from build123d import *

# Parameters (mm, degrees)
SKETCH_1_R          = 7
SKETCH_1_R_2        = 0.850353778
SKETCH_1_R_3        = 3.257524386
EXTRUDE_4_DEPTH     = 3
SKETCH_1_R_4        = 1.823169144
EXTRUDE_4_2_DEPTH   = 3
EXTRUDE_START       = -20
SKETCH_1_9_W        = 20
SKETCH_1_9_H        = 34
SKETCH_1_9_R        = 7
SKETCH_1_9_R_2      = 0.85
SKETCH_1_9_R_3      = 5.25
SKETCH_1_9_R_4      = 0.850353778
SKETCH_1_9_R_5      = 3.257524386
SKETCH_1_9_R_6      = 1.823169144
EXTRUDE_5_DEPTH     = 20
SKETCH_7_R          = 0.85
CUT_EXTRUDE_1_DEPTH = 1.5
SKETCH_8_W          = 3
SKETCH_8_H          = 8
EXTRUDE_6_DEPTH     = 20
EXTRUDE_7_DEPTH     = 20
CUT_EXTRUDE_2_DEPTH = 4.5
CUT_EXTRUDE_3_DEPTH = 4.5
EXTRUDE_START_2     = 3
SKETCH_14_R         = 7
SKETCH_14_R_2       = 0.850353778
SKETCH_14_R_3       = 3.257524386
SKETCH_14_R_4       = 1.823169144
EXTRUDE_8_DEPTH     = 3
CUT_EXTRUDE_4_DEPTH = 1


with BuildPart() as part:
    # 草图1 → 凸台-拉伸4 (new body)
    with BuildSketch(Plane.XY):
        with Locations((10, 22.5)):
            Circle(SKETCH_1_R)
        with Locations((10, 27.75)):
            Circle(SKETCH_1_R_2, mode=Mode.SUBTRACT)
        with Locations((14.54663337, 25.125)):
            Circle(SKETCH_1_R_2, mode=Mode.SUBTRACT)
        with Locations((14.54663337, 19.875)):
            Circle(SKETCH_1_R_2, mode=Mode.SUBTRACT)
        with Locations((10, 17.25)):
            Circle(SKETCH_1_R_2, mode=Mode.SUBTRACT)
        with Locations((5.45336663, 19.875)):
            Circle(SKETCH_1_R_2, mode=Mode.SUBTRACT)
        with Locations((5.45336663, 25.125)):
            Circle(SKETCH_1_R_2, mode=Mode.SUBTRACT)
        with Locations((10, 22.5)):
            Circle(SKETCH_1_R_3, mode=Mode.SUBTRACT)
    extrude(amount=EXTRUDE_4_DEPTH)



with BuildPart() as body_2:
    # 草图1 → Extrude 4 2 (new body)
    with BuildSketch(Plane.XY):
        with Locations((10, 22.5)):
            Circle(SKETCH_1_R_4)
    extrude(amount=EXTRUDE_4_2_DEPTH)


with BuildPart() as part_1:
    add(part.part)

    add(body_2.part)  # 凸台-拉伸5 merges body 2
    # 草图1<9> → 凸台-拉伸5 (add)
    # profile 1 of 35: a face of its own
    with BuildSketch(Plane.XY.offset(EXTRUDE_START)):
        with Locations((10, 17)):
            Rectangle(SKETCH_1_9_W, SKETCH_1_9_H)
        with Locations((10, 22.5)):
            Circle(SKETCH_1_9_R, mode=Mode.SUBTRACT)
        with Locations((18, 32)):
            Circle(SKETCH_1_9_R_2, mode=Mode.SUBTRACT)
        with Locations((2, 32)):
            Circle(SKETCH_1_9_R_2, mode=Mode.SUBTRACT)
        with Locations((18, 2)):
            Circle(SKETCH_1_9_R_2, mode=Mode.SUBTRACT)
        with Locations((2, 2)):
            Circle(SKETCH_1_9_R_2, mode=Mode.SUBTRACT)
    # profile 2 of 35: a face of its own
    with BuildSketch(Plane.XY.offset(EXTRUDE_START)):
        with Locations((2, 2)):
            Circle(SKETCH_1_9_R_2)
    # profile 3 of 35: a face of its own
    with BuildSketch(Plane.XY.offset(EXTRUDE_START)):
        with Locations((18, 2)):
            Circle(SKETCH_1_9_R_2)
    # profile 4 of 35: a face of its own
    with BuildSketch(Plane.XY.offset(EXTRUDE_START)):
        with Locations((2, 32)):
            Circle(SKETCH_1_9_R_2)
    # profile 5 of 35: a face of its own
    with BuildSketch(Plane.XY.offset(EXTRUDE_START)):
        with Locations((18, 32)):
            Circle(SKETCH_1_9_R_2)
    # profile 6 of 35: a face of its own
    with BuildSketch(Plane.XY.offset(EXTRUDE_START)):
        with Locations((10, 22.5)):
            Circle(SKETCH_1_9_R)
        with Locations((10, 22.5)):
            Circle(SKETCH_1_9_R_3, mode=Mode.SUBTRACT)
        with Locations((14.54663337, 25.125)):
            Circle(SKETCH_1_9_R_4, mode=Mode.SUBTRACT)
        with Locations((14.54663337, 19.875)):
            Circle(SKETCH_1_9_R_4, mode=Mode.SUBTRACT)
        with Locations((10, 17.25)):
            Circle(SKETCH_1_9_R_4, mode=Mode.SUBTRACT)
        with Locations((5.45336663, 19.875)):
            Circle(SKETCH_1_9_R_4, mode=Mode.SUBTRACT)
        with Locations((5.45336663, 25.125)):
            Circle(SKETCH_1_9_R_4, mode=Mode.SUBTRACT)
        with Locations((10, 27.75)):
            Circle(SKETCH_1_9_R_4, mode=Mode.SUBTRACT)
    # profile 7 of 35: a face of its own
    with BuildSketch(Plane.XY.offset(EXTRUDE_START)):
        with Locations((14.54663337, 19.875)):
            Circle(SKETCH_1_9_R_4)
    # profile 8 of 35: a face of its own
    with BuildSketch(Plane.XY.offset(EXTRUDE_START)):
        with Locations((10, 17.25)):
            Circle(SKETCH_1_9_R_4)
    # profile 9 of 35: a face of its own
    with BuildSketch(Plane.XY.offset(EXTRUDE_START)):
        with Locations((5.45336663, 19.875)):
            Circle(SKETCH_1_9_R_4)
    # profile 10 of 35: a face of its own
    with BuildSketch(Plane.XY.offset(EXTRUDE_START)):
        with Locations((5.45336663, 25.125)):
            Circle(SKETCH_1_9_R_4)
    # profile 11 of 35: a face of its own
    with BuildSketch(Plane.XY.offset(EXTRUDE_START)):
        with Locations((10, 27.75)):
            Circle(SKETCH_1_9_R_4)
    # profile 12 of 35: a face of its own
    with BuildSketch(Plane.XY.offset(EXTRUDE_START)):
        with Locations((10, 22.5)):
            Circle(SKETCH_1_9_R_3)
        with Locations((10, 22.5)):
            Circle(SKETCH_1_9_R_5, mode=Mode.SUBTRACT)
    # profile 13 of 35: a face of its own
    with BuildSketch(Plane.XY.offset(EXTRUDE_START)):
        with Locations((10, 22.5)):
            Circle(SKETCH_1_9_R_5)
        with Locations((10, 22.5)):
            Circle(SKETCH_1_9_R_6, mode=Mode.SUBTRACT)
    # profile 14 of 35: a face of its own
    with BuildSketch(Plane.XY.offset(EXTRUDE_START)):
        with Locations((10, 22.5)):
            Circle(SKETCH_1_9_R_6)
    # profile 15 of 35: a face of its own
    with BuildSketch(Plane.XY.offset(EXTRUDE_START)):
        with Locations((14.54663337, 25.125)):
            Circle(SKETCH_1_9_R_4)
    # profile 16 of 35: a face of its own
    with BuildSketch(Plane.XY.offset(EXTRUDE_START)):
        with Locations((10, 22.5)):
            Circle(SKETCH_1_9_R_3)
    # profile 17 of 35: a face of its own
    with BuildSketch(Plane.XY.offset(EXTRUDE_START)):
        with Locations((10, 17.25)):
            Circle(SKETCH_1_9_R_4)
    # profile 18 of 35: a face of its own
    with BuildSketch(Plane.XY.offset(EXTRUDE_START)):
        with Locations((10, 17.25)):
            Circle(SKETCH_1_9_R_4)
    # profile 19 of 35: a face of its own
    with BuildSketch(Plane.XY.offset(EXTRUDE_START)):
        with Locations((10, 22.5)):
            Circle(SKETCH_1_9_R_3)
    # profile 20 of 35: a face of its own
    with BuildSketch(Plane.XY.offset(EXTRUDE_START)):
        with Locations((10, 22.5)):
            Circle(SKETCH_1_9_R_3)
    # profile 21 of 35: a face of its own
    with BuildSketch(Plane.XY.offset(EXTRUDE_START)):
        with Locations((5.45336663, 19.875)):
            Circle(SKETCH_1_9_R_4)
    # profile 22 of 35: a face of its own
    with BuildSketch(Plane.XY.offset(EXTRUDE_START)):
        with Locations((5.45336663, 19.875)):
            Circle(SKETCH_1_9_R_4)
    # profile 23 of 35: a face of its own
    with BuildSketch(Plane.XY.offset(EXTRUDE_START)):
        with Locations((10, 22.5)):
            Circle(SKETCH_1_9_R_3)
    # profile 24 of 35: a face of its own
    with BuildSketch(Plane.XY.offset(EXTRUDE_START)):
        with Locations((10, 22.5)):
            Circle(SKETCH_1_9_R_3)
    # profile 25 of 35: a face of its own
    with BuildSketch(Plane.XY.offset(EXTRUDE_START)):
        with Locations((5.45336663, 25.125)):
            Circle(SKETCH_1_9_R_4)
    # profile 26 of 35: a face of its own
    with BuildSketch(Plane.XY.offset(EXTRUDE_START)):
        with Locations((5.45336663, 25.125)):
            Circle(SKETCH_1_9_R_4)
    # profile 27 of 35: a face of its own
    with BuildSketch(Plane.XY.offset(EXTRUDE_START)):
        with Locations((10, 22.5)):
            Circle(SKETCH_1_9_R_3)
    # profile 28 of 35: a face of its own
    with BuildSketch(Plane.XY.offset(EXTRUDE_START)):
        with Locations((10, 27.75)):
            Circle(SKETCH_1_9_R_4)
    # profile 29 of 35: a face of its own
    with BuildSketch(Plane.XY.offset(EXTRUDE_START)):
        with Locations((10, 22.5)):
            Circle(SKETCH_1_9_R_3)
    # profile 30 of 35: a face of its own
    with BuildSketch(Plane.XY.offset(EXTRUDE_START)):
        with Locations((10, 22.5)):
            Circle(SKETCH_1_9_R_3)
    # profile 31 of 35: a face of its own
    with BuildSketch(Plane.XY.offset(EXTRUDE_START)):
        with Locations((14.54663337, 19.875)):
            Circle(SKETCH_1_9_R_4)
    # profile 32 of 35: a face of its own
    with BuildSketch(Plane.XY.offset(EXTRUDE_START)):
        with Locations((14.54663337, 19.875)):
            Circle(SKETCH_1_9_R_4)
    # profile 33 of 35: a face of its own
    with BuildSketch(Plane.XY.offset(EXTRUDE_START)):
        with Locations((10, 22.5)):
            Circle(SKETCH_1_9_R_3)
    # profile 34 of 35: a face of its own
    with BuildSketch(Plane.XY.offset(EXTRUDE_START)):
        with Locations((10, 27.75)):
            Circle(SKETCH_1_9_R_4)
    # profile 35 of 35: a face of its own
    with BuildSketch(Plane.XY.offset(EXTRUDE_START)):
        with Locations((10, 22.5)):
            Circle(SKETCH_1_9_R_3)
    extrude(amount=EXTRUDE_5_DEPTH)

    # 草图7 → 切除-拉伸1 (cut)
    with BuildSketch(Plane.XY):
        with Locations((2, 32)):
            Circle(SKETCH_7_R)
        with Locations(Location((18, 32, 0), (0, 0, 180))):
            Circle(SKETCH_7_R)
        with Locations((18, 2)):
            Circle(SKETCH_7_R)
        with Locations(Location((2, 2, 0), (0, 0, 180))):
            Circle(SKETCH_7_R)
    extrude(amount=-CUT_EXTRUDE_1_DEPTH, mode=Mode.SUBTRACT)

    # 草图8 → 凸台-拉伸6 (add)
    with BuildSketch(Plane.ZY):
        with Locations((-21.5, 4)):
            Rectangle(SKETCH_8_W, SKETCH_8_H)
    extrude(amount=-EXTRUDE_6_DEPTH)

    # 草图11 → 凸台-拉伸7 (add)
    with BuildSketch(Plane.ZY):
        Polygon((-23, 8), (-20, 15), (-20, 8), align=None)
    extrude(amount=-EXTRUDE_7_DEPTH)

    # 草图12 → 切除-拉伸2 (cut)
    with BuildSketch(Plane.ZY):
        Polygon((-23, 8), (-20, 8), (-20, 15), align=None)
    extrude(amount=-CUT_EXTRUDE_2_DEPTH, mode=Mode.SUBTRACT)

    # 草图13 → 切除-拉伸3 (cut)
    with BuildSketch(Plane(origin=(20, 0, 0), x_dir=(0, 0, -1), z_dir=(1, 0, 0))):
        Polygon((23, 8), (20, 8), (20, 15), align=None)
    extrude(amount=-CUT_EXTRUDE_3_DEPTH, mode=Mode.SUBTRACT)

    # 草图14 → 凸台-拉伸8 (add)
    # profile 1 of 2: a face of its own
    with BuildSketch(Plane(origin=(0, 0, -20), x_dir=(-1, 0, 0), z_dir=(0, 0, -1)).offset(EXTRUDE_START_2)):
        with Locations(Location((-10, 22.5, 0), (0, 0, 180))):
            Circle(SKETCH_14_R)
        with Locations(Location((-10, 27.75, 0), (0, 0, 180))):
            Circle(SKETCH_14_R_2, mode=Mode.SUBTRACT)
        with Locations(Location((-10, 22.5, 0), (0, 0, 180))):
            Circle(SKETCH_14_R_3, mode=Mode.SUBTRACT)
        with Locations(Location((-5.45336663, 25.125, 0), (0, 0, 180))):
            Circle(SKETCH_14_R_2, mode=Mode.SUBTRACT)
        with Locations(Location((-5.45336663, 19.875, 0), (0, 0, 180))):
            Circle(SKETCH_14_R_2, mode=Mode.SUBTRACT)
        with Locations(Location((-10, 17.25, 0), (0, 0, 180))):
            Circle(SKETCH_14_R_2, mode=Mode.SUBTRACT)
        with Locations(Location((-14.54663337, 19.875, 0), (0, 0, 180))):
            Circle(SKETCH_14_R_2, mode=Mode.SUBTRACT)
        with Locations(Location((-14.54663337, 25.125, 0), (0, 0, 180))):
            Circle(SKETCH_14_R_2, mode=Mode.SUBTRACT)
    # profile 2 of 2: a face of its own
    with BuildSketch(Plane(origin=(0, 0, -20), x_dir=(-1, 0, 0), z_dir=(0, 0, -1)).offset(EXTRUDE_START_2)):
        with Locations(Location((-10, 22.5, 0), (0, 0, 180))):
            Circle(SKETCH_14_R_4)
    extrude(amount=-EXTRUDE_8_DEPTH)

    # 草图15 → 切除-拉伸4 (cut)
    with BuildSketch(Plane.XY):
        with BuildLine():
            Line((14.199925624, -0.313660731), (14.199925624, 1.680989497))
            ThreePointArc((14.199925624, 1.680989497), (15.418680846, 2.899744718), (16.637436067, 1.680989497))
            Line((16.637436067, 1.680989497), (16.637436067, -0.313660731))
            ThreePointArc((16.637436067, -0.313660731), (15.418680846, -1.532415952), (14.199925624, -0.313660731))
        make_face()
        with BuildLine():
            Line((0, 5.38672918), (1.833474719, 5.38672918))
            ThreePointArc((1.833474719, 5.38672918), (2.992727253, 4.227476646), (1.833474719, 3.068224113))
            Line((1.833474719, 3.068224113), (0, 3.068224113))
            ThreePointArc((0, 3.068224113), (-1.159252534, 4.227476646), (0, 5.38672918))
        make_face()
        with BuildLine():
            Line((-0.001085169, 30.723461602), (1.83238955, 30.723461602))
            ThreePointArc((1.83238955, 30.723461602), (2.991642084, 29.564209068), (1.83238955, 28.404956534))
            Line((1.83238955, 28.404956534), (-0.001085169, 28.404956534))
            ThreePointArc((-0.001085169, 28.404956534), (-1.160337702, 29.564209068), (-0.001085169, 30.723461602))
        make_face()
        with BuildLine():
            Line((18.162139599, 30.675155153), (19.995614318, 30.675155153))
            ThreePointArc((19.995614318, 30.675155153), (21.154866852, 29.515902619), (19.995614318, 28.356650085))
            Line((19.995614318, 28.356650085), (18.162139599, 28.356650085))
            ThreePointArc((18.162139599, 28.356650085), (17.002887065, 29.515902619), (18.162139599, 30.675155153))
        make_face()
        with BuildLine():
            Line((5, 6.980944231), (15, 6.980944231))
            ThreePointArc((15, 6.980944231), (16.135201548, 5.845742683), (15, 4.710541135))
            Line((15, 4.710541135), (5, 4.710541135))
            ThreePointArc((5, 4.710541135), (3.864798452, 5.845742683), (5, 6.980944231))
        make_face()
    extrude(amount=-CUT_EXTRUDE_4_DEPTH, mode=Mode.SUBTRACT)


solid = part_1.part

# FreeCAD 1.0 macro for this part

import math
import FreeCAD as App
import Part
import Sketcher

V = App.Vector
Q = App.Units.Quantity

doc = App.newDocument("Part")
params = doc.addObject("Spreadsheet::Sheet", "Params")
for row, (alias, value) in enumerate([
    ("sketch1_diameter", "14 mm"),
    ("pad1_length", "3 mm"),
    ("pad2_length", "3 mm"),
    ("sketch3_width", "20 mm"),
    ("sketch3_height", "34 mm"),
    ("pad3_length", "20 mm"),
    ("sketch4_diameter", "1.7 mm"),
    ("pocket1_length", "1.5 mm"),
    ("sketch5_width", "8 mm"),
    ("sketch5_height", "3 mm"),
    ("pad4_length", "20 mm"),
    ("sketch6_width", "7 mm"),
    ("sketch6_height", "3 mm"),
    ("pad5_length", "20 mm"),
    ("sketch7_width", "7 mm"),
    ("sketch7_height", "3 mm"),
    ("pocket2_length", "4.5 mm"),
    ("sketch8_width", "7 mm"),
    ("sketch8_height", "3 mm"),
    ("pocket3_length", "4.5 mm"),
    ("sketch9_diameter", "14 mm"),
    ("pad6_length", "3 mm"),
    ("sketch10_width", "10 mm"),
    ("pocket4_length", "1 mm"),
], start=1):
    params.set(f"A{row}", alias)
    params.set(f"B{row}", "=" + value)
    params.setAlias(f"B{row}", alias)

body = doc.addObject("PartDesign::Body", "Body")

sketch1 = doc.addObject("Sketcher::SketchObject", "Sketch")
body.addObject(sketch1)
sketch1.AttachmentSupport = (doc.XY_Plane, [""])
sketch1.MapMode = "FlatFace"
sketch1.addGeometry(Part.Circle(V(10, 22.5, 0), V(0, 0, 1), 7), False)
sketch1.addGeometry(Part.Circle(V(5.453367, 19.875, 0), V(0, 0, 1), 0.850354), False)
sketch1.addGeometry(Part.Circle(V(10, 17.25, 0), V(0, 0, 1), 0.850354), False)
sketch1.addGeometry(Part.Circle(V(14.546633, 19.875, 0), V(0, 0, 1), 0.850354), False)
sketch1.addGeometry(Part.Circle(V(5.453367, 25.125, 0), V(0, 0, 1), 0.850354), False)
sketch1.addGeometry(Part.Circle(V(10, 22.5, 0), V(0, 0, 1), 3.257524), False)
sketch1.addGeometry(Part.Circle(V(14.546633, 25.125, 0), V(0, 0, 1), 0.850354), False)
sketch1.addGeometry(Part.Circle(V(10, 27.75, 0), V(0, 0, 1), 0.850354), False)
sketch1.addConstraint(Sketcher.Constraint("Coincident", 5, 3, 0, 3))
sketch1.addConstraint(Sketcher.Constraint("Equal", 1, 2))
sketch1.addConstraint(Sketcher.Constraint("Equal", 2, 3))
sketch1.addConstraint(Sketcher.Constraint("Equal", 3, 4))
sketch1.addConstraint(Sketcher.Constraint("Equal", 4, 6))
sketch1.addConstraint(Sketcher.Constraint("Equal", 6, 7))
sketch1.addConstraint(Sketcher.Constraint("Horizontal", 1, 3, 3, 3))
sketch1.addConstraint(Sketcher.Constraint("Horizontal", 4, 3, 6, 3))
sketch1.addConstraint(Sketcher.Constraint("Vertical", 0, 3, 2, 3))
sketch1.addConstraint(Sketcher.Constraint("Vertical", 1, 3, 4, 3))
sketch1.addConstraint(Sketcher.Constraint("Vertical", 3, 3, 6, 3))
sketch1.addConstraint(Sketcher.Constraint("Vertical", 5, 3, 7, 3))
sketch1.addConstraint(Sketcher.Constraint("Diameter", 0, Q("14 mm")))
sketch1.addConstraint(Sketcher.Constraint("DistanceX", -1, 1, 0, 3, Q("10 mm")))
sketch1.addConstraint(Sketcher.Constraint("DistanceY", -1, 1, 0, 3, Q("22.5 mm")))
sketch1.addConstraint(Sketcher.Constraint("Diameter", 5, Q("6.515049 mm")))
sketch1.addConstraint(Sketcher.Constraint("DistanceY", -1, 1, 2, 3, Q("17.25 mm")))
sketch1.addConstraint(Sketcher.Constraint("DistanceY", -1, 1, 7, 3, Q("27.75 mm")))
sketch1.addConstraint(Sketcher.Constraint("DistanceY", 1, 3, 4, 3, Q("5.25 mm")))
sketch1.addConstraint(Sketcher.Constraint("Diameter", 1, Q("1.700708 mm")))
sketch1.addConstraint(Sketcher.Constraint("DistanceY", -1, 1, 1, 3, Q("19.875 mm")))
sketch1.addConstraint(Sketcher.Constraint("DistanceX", -1, 1, 1, 3, Q("5.453367 mm")))
sketch1.addConstraint(Sketcher.Constraint("DistanceX", -1, 1, 3, 3, Q("14.546633 mm")))
sketch1.setExpression("Constraints[12]", "Params.sketch1_diameter")
pad1 = doc.addObject("PartDesign::Pad", "Pad")
body.addObject(pad1)
pad1.Profile = sketch1
pad1.setExpression("Length", "Params.pad1_length")
body2 = doc.addObject("PartDesign::Body", "Body001")

sketch2 = doc.addObject("Sketcher::SketchObject", "Sketch001")
body2.addObject(sketch2)
sketch2.AttachmentSupport = (doc.getObject("XY_Plane001"), [""])
sketch2.MapMode = "FlatFace"
sketch2.addGeometry(Part.Circle(V(10, 22.5, 0), V(0, 0, 1), 1.823169), False)
sketch2.addConstraint(Sketcher.Constraint("DistanceX", -1, 1, 0, 3, Q("10 mm")))
sketch2.addConstraint(Sketcher.Constraint("DistanceY", -1, 1, 0, 3, Q("22.5 mm")))
sketch2.addConstraint(Sketcher.Constraint("Diameter", 0, Q("3.646338 mm")))
pad2 = doc.addObject("PartDesign::Pad", "Pad001")
body2.addObject(pad2)
pad2.Profile = sketch2
pad2.setExpression("Length", "Params.pad2_length")
body.AllowCompound = True
doc.recompute()

boolean = doc.addObject("PartDesign::Boolean", "Boolean")
body.addObject(boolean)
boolean.Type = "Fuse"
boolean.addObjects([body2])

sketch3 = doc.addObject("Sketcher::SketchObject", "Sketch002")
body.addObject(sketch3)
sketch3.AttachmentSupport = (doc.XY_Plane, [""])
sketch3.MapMode = "FlatFace"
sketch3.AttachmentOffset = App.Placement(V(0, 0, -20), App.Rotation())
sketch3.addGeometry(Part.LineSegment(V(0, 34, 0), V(0, 0, 0)), False)
sketch3.addGeometry(Part.LineSegment(V(0, 0, 0), V(20, 0, 0)), False)
sketch3.addGeometry(Part.LineSegment(V(20, 0, 0), V(20, 34, 0)), False)
sketch3.addGeometry(Part.LineSegment(V(20, 34, 0), V(0, 34, 0)), False)
sketch3.addConstraint(Sketcher.Constraint("Coincident", 0, 2, 1, 1))
sketch3.addConstraint(Sketcher.Constraint("Coincident", 1, 2, 2, 1))
sketch3.addConstraint(Sketcher.Constraint("Coincident", 2, 2, 3, 1))
sketch3.addConstraint(Sketcher.Constraint("Coincident", 3, 2, 0, 1))
sketch3.addConstraint(Sketcher.Constraint("Vertical", 0))
sketch3.addConstraint(Sketcher.Constraint("Horizontal", 1))
sketch3.addConstraint(Sketcher.Constraint("Vertical", 2))
sketch3.addConstraint(Sketcher.Constraint("Horizontal", 3))
sketch3.addConstraint(Sketcher.Constraint("Coincident", 0, 2, -1, 1))
sketch3.addConstraint(Sketcher.Constraint("DistanceX", 1, 1, 1, 2, Q("20 mm")))
sketch3.addConstraint(Sketcher.Constraint("DistanceY", 0, 2, 0, 1, Q("34 mm")))
sketch3.setExpression("Constraints[9]", "Params.sketch3_width")
sketch3.setExpression("Constraints[10]", "Params.sketch3_height")
pad3 = doc.addObject("PartDesign::Pad", "Pad002")
body.addObject(pad3)
pad3.Profile = sketch3
pad3.setExpression("Length", "Params.pad3_length")

sketch4 = doc.addObject("Sketcher::SketchObject", "Sketch003")
body.addObject(sketch4)
sketch4.AttachmentSupport = (doc.XY_Plane, [""])
sketch4.MapMode = "FlatFace"
sketch4.addGeometry(Part.Circle(V(2, 32, 0), V(0, 0, 1), 0.85), False)
sketch4.addGeometry(Part.Circle(V(18, 32, 0), V(0, 0, 1), 0.85), False)
sketch4.addGeometry(Part.Circle(V(18, 2, 0), V(0, 0, 1), 0.85), False)
sketch4.addGeometry(Part.Circle(V(2, 2, 0), V(0, 0, 1), 0.85), False)
sketch4.addConstraint(Sketcher.Constraint("Equal", 0, 1))
sketch4.addConstraint(Sketcher.Constraint("Equal", 1, 2))
sketch4.addConstraint(Sketcher.Constraint("Equal", 2, 3))
sketch4.addConstraint(Sketcher.Constraint("Horizontal", 0, 3, 1, 3))
sketch4.addConstraint(Sketcher.Constraint("Horizontal", 2, 3, 3, 3))
sketch4.addConstraint(Sketcher.Constraint("Vertical", 1, 3, 2, 3))
sketch4.addConstraint(Sketcher.Constraint("Vertical", 0, 3, 3, 3))
sketch4.addConstraint(Sketcher.Constraint("Diameter", 0, Q("1.7 mm")))
sketch4.addConstraint(Sketcher.Constraint("DistanceX", -1, 1, 0, 3, Q("2 mm")))
sketch4.addConstraint(Sketcher.Constraint("DistanceY", -1, 1, 0, 3, Q("32 mm")))
sketch4.addConstraint(Sketcher.Constraint("DistanceX", -1, 1, 1, 3, Q("18 mm")))
sketch4.addConstraint(Sketcher.Constraint("DistanceY", -1, 1, 2, 3, Q("2 mm")))
sketch4.setExpression("Constraints[7]", "Params.sketch4_diameter")
pocket1 = doc.addObject("PartDesign::Pocket", "Pocket")
body.addObject(pocket1)
pocket1.Profile = sketch4
pocket1.setExpression("Length", "Params.pocket1_length")

sketch5 = doc.addObject("Sketcher::SketchObject", "Sketch004")
body.addObject(sketch5)
sketch5.AttachmentSupport = (doc.YZ_Plane, [""])
sketch5.MapMode = "FlatFace"
sketch5.addGeometry(Part.LineSegment(V(8, -23, 0), V(0, -23, 0)), False)
sketch5.addGeometry(Part.LineSegment(V(0, -23, 0), V(0, -20, 0)), False)
sketch5.addGeometry(Part.LineSegment(V(0, -20, 0), V(8, -20, 0)), False)
sketch5.addGeometry(Part.LineSegment(V(8, -20, 0), V(8, -23, 0)), False)
sketch5.addConstraint(Sketcher.Constraint("Coincident", 0, 2, 1, 1))
sketch5.addConstraint(Sketcher.Constraint("Coincident", 1, 2, 2, 1))
sketch5.addConstraint(Sketcher.Constraint("Coincident", 2, 2, 3, 1))
sketch5.addConstraint(Sketcher.Constraint("Coincident", 3, 2, 0, 1))
sketch5.addConstraint(Sketcher.Constraint("Horizontal", 0))
sketch5.addConstraint(Sketcher.Constraint("Vertical", 1))
sketch5.addConstraint(Sketcher.Constraint("Horizontal", 2))
sketch5.addConstraint(Sketcher.Constraint("Vertical", 3))
sketch5.addConstraint(Sketcher.Constraint("PointOnObject", 0, 2, -2))
sketch5.addConstraint(Sketcher.Constraint("DistanceX", 0, 2, 0, 1, Q("8 mm")))
sketch5.addConstraint(Sketcher.Constraint("DistanceY", 1, 1, 1, 2, Q("3 mm")))
sketch5.addConstraint(Sketcher.Constraint("DistanceY", 0, 2, -1, 1, Q("23 mm")))
sketch5.setExpression("Constraints[9]", "Params.sketch5_width")
sketch5.setExpression("Constraints[10]", "Params.sketch5_height")
pad4 = doc.addObject("PartDesign::Pad", "Pad003")
body.addObject(pad4)
pad4.Profile = sketch5
pad4.setExpression("Length", "Params.pad4_length")

sketch6 = doc.addObject("Sketcher::SketchObject", "Sketch005")
body.addObject(sketch6)
sketch6.AttachmentSupport = (doc.YZ_Plane, [""])
sketch6.MapMode = "FlatFace"
sketch6.addGeometry(Part.LineSegment(V(15, -20, 0), V(8, -23, 0)), False)
sketch6.addGeometry(Part.LineSegment(V(8, -23, 0), V(8, -20, 0)), False)
sketch6.addGeometry(Part.LineSegment(V(8, -20, 0), V(15, -20, 0)), False)
sketch6.addConstraint(Sketcher.Constraint("Coincident", 0, 2, 1, 1))
sketch6.addConstraint(Sketcher.Constraint("Coincident", 1, 2, 2, 1))
sketch6.addConstraint(Sketcher.Constraint("Coincident", 2, 2, 0, 1))
sketch6.addConstraint(Sketcher.Constraint("Vertical", 1))
sketch6.addConstraint(Sketcher.Constraint("Horizontal", 2))
sketch6.addConstraint(Sketcher.Constraint("DistanceX", 2, 1, 2, 2, Q("7 mm")))
sketch6.addConstraint(Sketcher.Constraint("DistanceY", 1, 1, 1, 2, Q("3 mm")))
sketch6.addConstraint(Sketcher.Constraint("DistanceX", -1, 1, 0, 2, Q("8 mm")))
sketch6.addConstraint(Sketcher.Constraint("DistanceY", 0, 2, -1, 1, Q("23 mm")))
sketch6.setExpression("Constraints[5]", "Params.sketch6_width")
sketch6.setExpression("Constraints[6]", "Params.sketch6_height")
pad5 = doc.addObject("PartDesign::Pad", "Pad004")
body.addObject(pad5)
pad5.Profile = sketch6
pad5.setExpression("Length", "Params.pad5_length")

sketch7 = doc.addObject("Sketcher::SketchObject", "Sketch006")
body.addObject(sketch7)
sketch7.AttachmentSupport = (doc.YZ_Plane, [""])
sketch7.MapMode = "FlatFace"
sketch7.addGeometry(Part.LineSegment(V(8, -23, 0), V(8, -20, 0)), False)
sketch7.addGeometry(Part.LineSegment(V(8, -20, 0), V(15, -20, 0)), False)
sketch7.addGeometry(Part.LineSegment(V(15, -20, 0), V(8, -23, 0)), False)
sketch7.addConstraint(Sketcher.Constraint("Coincident", 0, 2, 1, 1))
sketch7.addConstraint(Sketcher.Constraint("Coincident", 1, 2, 2, 1))
sketch7.addConstraint(Sketcher.Constraint("Coincident", 2, 2, 0, 1))
sketch7.addConstraint(Sketcher.Constraint("Vertical", 0))
sketch7.addConstraint(Sketcher.Constraint("Horizontal", 1))
sketch7.addConstraint(Sketcher.Constraint("DistanceX", 1, 1, 1, 2, Q("7 mm")))
sketch7.addConstraint(Sketcher.Constraint("DistanceY", 0, 1, 0, 2, Q("3 mm")))
sketch7.addConstraint(Sketcher.Constraint("DistanceX", -1, 1, 0, 2, Q("8 mm")))
sketch7.addConstraint(Sketcher.Constraint("DistanceY", 0, 2, -1, 1, Q("20 mm")))
sketch7.setExpression("Constraints[5]", "Params.sketch7_width")
sketch7.setExpression("Constraints[6]", "Params.sketch7_height")
pocket2 = doc.addObject("PartDesign::Pocket", "Pocket001")
body.addObject(pocket2)
pocket2.Profile = sketch7
pocket2.setExpression("Length", "Params.pocket2_length")
pocket2.Reversed = True

sketch8 = doc.addObject("Sketcher::SketchObject", "Sketch007")
body.addObject(sketch8)
sketch8.AttachmentSupport = (doc.YZ_Plane, [""])
sketch8.MapMode = "FlatFace"
sketch8.AttachmentOffset = App.Placement(V(0, 0, 20), App.Rotation())
sketch8.addGeometry(Part.LineSegment(V(8, -20, 0), V(8, -23, 0)), False)
sketch8.addGeometry(Part.LineSegment(V(8, -23, 0), V(15, -20, 0)), False)
sketch8.addGeometry(Part.LineSegment(V(15, -20, 0), V(8, -20, 0)), False)
sketch8.addConstraint(Sketcher.Constraint("Coincident", 0, 2, 1, 1))
sketch8.addConstraint(Sketcher.Constraint("Coincident", 1, 2, 2, 1))
sketch8.addConstraint(Sketcher.Constraint("Coincident", 2, 2, 0, 1))
sketch8.addConstraint(Sketcher.Constraint("Vertical", 0))
sketch8.addConstraint(Sketcher.Constraint("Horizontal", 2))
sketch8.addConstraint(Sketcher.Constraint("DistanceX", 2, 2, 2, 1, Q("7 mm")))
sketch8.addConstraint(Sketcher.Constraint("DistanceY", 0, 2, 0, 1, Q("3 mm")))
sketch8.addConstraint(Sketcher.Constraint("DistanceX", -1, 1, 0, 2, Q("8 mm")))
sketch8.addConstraint(Sketcher.Constraint("DistanceY", 0, 2, -1, 1, Q("23 mm")))
sketch8.setExpression("Constraints[5]", "Params.sketch8_width")
sketch8.setExpression("Constraints[6]", "Params.sketch8_height")
pocket3 = doc.addObject("PartDesign::Pocket", "Pocket002")
body.addObject(pocket3)
pocket3.Profile = sketch8
pocket3.setExpression("Length", "Params.pocket3_length")

sketch9 = doc.addObject("Sketcher::SketchObject", "Sketch008")
body.addObject(sketch9)
sketch9.AttachmentSupport = (doc.XY_Plane, [""])
sketch9.MapMode = "FlatFace"
sketch9.AttachmentOffset = App.Placement(V(0, 0, -23), App.Rotation())
sketch9.addGeometry(Part.Circle(V(10, 22.5, 0), V(0, 0, 1), 7), False)
sketch9.addGeometry(Part.Circle(V(5.453367, 25.125, 0), V(0, 0, 1), 0.850354), False)
sketch9.addGeometry(Part.Circle(V(10, 27.75, 0), V(0, 0, 1), 0.850354), False)
sketch9.addGeometry(Part.Circle(V(14.546633, 25.125, 0), V(0, 0, 1), 0.850354), False)
sketch9.addGeometry(Part.Circle(V(5.453367, 19.875, 0), V(0, 0, 1), 0.850354), False)
sketch9.addGeometry(Part.Circle(V(10, 17.25, 0), V(0, 0, 1), 0.850354), False)
sketch9.addGeometry(Part.Circle(V(10, 22.5, 0), V(0, 0, 1), 3.257524), False)
sketch9.addGeometry(Part.Circle(V(14.546633, 19.875, 0), V(0, 0, 1), 0.850354), False)
sketch9.addGeometry(Part.Circle(V(10, 22.5, 0), V(0, 0, 1), 1.823169), False)
sketch9.addConstraint(Sketcher.Constraint("Coincident", 6, 3, 0, 3))
sketch9.addConstraint(Sketcher.Constraint("Coincident", 8, 3, 0, 3))
sketch9.addConstraint(Sketcher.Constraint("Equal", 1, 2))
sketch9.addConstraint(Sketcher.Constraint("Equal", 2, 3))
sketch9.addConstraint(Sketcher.Constraint("Equal", 3, 4))
sketch9.addConstraint(Sketcher.Constraint("Equal", 4, 5))
sketch9.addConstraint(Sketcher.Constraint("Equal", 5, 7))
sketch9.addConstraint(Sketcher.Constraint("Horizontal", 1, 3, 3, 3))
sketch9.addConstraint(Sketcher.Constraint("Horizontal", 4, 3, 7, 3))
sketch9.addConstraint(Sketcher.Constraint("Vertical", 0, 3, 2, 3))
sketch9.addConstraint(Sketcher.Constraint("Vertical", 1, 3, 4, 3))
sketch9.addConstraint(Sketcher.Constraint("Vertical", 2, 3, 5, 3))
sketch9.addConstraint(Sketcher.Constraint("Vertical", 3, 3, 7, 3))
sketch9.addConstraint(Sketcher.Constraint("Diameter", 0, Q("14 mm")))
sketch9.addConstraint(Sketcher.Constraint("DistanceX", -1, 1, 0, 3, Q("10 mm")))
sketch9.addConstraint(Sketcher.Constraint("DistanceY", -1, 1, 0, 3, Q("22.5 mm")))
sketch9.addConstraint(Sketcher.Constraint("DistanceY", 5, 3, 2, 3, Q("10.5 mm")))
sketch9.addConstraint(Sketcher.Constraint("Diameter", 6, Q("6.515049 mm")))
sketch9.addConstraint(Sketcher.Constraint("Diameter", 8, Q("3.646338 mm")))
sketch9.addConstraint(Sketcher.Constraint("DistanceY", -1, 1, 2, 3, Q("27.75 mm")))
sketch9.addConstraint(Sketcher.Constraint("DistanceY", 4, 3, 1, 3, Q("5.25 mm")))
sketch9.addConstraint(Sketcher.Constraint("Diameter", 1, Q("1.700708 mm")))
sketch9.addConstraint(Sketcher.Constraint("DistanceY", -1, 1, 1, 3, Q("25.125 mm")))
sketch9.addConstraint(Sketcher.Constraint("DistanceX", -1, 1, 1, 3, Q("5.453367 mm")))
sketch9.addConstraint(Sketcher.Constraint("DistanceX", -1, 1, 3, 3, Q("14.546633 mm")))
sketch9.setExpression("Constraints[13]", "Params.sketch9_diameter")
pad6 = doc.addObject("PartDesign::Pad", "Pad005")
body.addObject(pad6)
pad6.Profile = sketch9
pad6.setExpression("Length", "Params.pad6_length")

sketch10 = doc.addObject("Sketcher::SketchObject", "Sketch009")
body.addObject(sketch10)
sketch10.AttachmentSupport = (doc.XY_Plane, [""])
sketch10.MapMode = "FlatFace"
sketch10.addGeometry(Part.LineSegment(V(14.199926, 1.680989, 0), V(14.199926, -0.313661, 0)), False)
sketch10.addGeometry(Part.ArcOfCircle(Part.Circle(V(15.418681, -0.313661, 0), V(0, 0, 1), 1.218755), math.radians(180), math.radians(360)), False)
sketch10.addGeometry(Part.LineSegment(V(16.637436, -0.313661, 0), V(16.637436, 1.680989, 0)), False)
sketch10.addGeometry(Part.ArcOfCircle(Part.Circle(V(15.418681, 1.680989, 0), V(0, 0, 1), 1.218755), math.radians(0), math.radians(180)), False)
sketch10.addGeometry(Part.LineSegment(V(1.833475, 5.386729, 0), V(0, 5.386729, 0)), False)
sketch10.addGeometry(Part.ArcOfCircle(Part.Circle(V(0, 4.227477, 0), V(0, 0, 1), 1.159253), math.radians(90), math.radians(270)), False)
sketch10.addGeometry(Part.LineSegment(V(0, 3.068224, 0), V(1.833475, 3.068224, 0)), False)
sketch10.addGeometry(Part.ArcOfCircle(Part.Circle(V(1.833475, 4.227477, 0), V(0, 0, 1), 1.159253), math.radians(-90), math.radians(90)), False)
sketch10.addGeometry(Part.LineSegment(V(1.83239, 30.723462, 0), V(-0.001085, 30.723462, 0)), False)
sketch10.addGeometry(Part.ArcOfCircle(Part.Circle(V(-0.001085, 29.564209, 0), V(0, 0, 1), 1.159253), math.radians(90), math.radians(270)), False)
sketch10.addGeometry(Part.LineSegment(V(-0.001085, 28.404957, 0), V(1.83239, 28.404957, 0)), False)
sketch10.addGeometry(Part.ArcOfCircle(Part.Circle(V(1.83239, 29.564209, 0), V(0, 0, 1), 1.159253), math.radians(-90), math.radians(90)), False)
sketch10.addGeometry(Part.LineSegment(V(19.995614, 30.675155, 0), V(18.16214, 30.675155, 0)), False)
sketch10.addGeometry(Part.ArcOfCircle(Part.Circle(V(18.16214, 29.515903, 0), V(0, 0, 1), 1.159253), math.radians(90), math.radians(270)), False)
sketch10.addGeometry(Part.LineSegment(V(18.16214, 28.35665, 0), V(19.995614, 28.35665, 0)), False)
sketch10.addGeometry(Part.ArcOfCircle(Part.Circle(V(19.995614, 29.515903, 0), V(0, 0, 1), 1.159253), math.radians(-90), math.radians(90)), False)
sketch10.addGeometry(Part.LineSegment(V(15, 6.980944, 0), V(5, 6.980944, 0)), False)
sketch10.addGeometry(Part.ArcOfCircle(Part.Circle(V(5, 5.845743, 0), V(0, 0, 1), 1.135202), math.radians(90), math.radians(270)), False)
sketch10.addGeometry(Part.LineSegment(V(5, 4.710541, 0), V(15, 4.710541, 0)), False)
sketch10.addGeometry(Part.ArcOfCircle(Part.Circle(V(15, 5.845743, 0), V(0, 0, 1), 1.135202), math.radians(-90), math.radians(90)), False)
sketch10.addConstraint(Sketcher.Constraint("Tangent", 0, 2, 1, 1))
sketch10.addConstraint(Sketcher.Constraint("Tangent", 1, 2, 2, 1))
sketch10.addConstraint(Sketcher.Constraint("Tangent", 2, 2, 3, 1))
sketch10.addConstraint(Sketcher.Constraint("Tangent", 3, 2, 0, 1))
sketch10.addConstraint(Sketcher.Constraint("Tangent", 4, 2, 5, 1))
sketch10.addConstraint(Sketcher.Constraint("Tangent", 5, 2, 6, 1))
sketch10.addConstraint(Sketcher.Constraint("Tangent", 6, 2, 7, 1))
sketch10.addConstraint(Sketcher.Constraint("Tangent", 7, 2, 4, 1))
sketch10.addConstraint(Sketcher.Constraint("Tangent", 8, 2, 9, 1))
sketch10.addConstraint(Sketcher.Constraint("Tangent", 9, 2, 10, 1))
sketch10.addConstraint(Sketcher.Constraint("Tangent", 10, 2, 11, 1))
sketch10.addConstraint(Sketcher.Constraint("Tangent", 11, 2, 8, 1))
sketch10.addConstraint(Sketcher.Constraint("Tangent", 12, 2, 13, 1))
sketch10.addConstraint(Sketcher.Constraint("Tangent", 13, 2, 14, 1))
sketch10.addConstraint(Sketcher.Constraint("Tangent", 14, 2, 15, 1))
sketch10.addConstraint(Sketcher.Constraint("Tangent", 15, 2, 12, 1))
sketch10.addConstraint(Sketcher.Constraint("Tangent", 16, 2, 17, 1))
sketch10.addConstraint(Sketcher.Constraint("Tangent", 17, 2, 18, 1))
sketch10.addConstraint(Sketcher.Constraint("Tangent", 18, 2, 19, 1))
sketch10.addConstraint(Sketcher.Constraint("Tangent", 19, 2, 16, 1))
sketch10.addConstraint(Sketcher.Constraint("Vertical", 0))
sketch10.addConstraint(Sketcher.Constraint("Vertical", 2))
sketch10.addConstraint(Sketcher.Constraint("Horizontal", 4))
sketch10.addConstraint(Sketcher.Constraint("Horizontal", 6))
sketch10.addConstraint(Sketcher.Constraint("Horizontal", 8))
sketch10.addConstraint(Sketcher.Constraint("Horizontal", 10))
sketch10.addConstraint(Sketcher.Constraint("Horizontal", 12))
sketch10.addConstraint(Sketcher.Constraint("Horizontal", 14))
sketch10.addConstraint(Sketcher.Constraint("Horizontal", 16))
sketch10.addConstraint(Sketcher.Constraint("Horizontal", 18))
sketch10.addConstraint(Sketcher.Constraint("Equal", 7, 9))
sketch10.addConstraint(Sketcher.Constraint("Equal", 11, 13))
sketch10.addConstraint(Sketcher.Constraint("PointOnObject", 5, 3, -2))
sketch10.addConstraint(Sketcher.Constraint("Equal", 6, 8))
sketch10.addConstraint(Sketcher.Constraint("Equal", 10, 12))
sketch10.addConstraint(Sketcher.Constraint("DistanceX", 16, 2, 16, 1, Q("10 mm")))
sketch10.addConstraint(Sketcher.Constraint("DistanceX", -1, 1, 17, 3, Q("5 mm")))
sketch10.addConstraint(Sketcher.Constraint("Radius", 17, Q("1.135202 mm")))
sketch10.addConstraint(Sketcher.Constraint("Radius", 1, Q("1.218755 mm")))
sketch10.addConstraint(Sketcher.Constraint("Radius", 5, Q("1.159253 mm")))
sketch10.addConstraint(Sketcher.Constraint("DistanceY", 0, 2, 0, 1, Q("1.99465 mm")))
sketch10.addConstraint(Sketcher.Constraint("DistanceX", 9, 3, 15, 3, Q("19.996699 mm")))
sketch10.addConstraint(Sketcher.Constraint("DistanceY", 10, 2, 12, 2, Q("2.270199 mm")))
sketch10.addConstraint(Sketcher.Constraint("DistanceY", 1, 3, 18, 2, Q("5.024202 mm")))
sketch10.addConstraint(Sketcher.Constraint("DistanceX", 4, 2, 4, 1, Q("1.833475 mm")))
sketch10.addConstraint(Sketcher.Constraint("DistanceX", -1, 1, 1, 3, Q("15.418681 mm")))
sketch10.addConstraint(Sketcher.Constraint("DistanceY", 1, 3, -1, 1, Q("0.313661 mm")))
sketch10.addConstraint(Sketcher.Constraint("DistanceY", -1, 1, 9, 3, Q("29.564209 mm")))
sketch10.addConstraint(Sketcher.Constraint("DistanceX", -1, 1, 11, 3, Q("1.83239 mm")))
sketch10.addConstraint(Sketcher.Constraint("DistanceY", -1, 1, 4, 2, Q("5.386729 mm")))
sketch10.setExpression("Constraints[35]", "Params.sketch10_width")
pocket4 = doc.addObject("PartDesign::Pocket", "Pocket003")
body.addObject(pocket4)
pocket4.Profile = sketch10
pocket4.setExpression("Length", "Params.pocket4_length")

doc.recompute()
